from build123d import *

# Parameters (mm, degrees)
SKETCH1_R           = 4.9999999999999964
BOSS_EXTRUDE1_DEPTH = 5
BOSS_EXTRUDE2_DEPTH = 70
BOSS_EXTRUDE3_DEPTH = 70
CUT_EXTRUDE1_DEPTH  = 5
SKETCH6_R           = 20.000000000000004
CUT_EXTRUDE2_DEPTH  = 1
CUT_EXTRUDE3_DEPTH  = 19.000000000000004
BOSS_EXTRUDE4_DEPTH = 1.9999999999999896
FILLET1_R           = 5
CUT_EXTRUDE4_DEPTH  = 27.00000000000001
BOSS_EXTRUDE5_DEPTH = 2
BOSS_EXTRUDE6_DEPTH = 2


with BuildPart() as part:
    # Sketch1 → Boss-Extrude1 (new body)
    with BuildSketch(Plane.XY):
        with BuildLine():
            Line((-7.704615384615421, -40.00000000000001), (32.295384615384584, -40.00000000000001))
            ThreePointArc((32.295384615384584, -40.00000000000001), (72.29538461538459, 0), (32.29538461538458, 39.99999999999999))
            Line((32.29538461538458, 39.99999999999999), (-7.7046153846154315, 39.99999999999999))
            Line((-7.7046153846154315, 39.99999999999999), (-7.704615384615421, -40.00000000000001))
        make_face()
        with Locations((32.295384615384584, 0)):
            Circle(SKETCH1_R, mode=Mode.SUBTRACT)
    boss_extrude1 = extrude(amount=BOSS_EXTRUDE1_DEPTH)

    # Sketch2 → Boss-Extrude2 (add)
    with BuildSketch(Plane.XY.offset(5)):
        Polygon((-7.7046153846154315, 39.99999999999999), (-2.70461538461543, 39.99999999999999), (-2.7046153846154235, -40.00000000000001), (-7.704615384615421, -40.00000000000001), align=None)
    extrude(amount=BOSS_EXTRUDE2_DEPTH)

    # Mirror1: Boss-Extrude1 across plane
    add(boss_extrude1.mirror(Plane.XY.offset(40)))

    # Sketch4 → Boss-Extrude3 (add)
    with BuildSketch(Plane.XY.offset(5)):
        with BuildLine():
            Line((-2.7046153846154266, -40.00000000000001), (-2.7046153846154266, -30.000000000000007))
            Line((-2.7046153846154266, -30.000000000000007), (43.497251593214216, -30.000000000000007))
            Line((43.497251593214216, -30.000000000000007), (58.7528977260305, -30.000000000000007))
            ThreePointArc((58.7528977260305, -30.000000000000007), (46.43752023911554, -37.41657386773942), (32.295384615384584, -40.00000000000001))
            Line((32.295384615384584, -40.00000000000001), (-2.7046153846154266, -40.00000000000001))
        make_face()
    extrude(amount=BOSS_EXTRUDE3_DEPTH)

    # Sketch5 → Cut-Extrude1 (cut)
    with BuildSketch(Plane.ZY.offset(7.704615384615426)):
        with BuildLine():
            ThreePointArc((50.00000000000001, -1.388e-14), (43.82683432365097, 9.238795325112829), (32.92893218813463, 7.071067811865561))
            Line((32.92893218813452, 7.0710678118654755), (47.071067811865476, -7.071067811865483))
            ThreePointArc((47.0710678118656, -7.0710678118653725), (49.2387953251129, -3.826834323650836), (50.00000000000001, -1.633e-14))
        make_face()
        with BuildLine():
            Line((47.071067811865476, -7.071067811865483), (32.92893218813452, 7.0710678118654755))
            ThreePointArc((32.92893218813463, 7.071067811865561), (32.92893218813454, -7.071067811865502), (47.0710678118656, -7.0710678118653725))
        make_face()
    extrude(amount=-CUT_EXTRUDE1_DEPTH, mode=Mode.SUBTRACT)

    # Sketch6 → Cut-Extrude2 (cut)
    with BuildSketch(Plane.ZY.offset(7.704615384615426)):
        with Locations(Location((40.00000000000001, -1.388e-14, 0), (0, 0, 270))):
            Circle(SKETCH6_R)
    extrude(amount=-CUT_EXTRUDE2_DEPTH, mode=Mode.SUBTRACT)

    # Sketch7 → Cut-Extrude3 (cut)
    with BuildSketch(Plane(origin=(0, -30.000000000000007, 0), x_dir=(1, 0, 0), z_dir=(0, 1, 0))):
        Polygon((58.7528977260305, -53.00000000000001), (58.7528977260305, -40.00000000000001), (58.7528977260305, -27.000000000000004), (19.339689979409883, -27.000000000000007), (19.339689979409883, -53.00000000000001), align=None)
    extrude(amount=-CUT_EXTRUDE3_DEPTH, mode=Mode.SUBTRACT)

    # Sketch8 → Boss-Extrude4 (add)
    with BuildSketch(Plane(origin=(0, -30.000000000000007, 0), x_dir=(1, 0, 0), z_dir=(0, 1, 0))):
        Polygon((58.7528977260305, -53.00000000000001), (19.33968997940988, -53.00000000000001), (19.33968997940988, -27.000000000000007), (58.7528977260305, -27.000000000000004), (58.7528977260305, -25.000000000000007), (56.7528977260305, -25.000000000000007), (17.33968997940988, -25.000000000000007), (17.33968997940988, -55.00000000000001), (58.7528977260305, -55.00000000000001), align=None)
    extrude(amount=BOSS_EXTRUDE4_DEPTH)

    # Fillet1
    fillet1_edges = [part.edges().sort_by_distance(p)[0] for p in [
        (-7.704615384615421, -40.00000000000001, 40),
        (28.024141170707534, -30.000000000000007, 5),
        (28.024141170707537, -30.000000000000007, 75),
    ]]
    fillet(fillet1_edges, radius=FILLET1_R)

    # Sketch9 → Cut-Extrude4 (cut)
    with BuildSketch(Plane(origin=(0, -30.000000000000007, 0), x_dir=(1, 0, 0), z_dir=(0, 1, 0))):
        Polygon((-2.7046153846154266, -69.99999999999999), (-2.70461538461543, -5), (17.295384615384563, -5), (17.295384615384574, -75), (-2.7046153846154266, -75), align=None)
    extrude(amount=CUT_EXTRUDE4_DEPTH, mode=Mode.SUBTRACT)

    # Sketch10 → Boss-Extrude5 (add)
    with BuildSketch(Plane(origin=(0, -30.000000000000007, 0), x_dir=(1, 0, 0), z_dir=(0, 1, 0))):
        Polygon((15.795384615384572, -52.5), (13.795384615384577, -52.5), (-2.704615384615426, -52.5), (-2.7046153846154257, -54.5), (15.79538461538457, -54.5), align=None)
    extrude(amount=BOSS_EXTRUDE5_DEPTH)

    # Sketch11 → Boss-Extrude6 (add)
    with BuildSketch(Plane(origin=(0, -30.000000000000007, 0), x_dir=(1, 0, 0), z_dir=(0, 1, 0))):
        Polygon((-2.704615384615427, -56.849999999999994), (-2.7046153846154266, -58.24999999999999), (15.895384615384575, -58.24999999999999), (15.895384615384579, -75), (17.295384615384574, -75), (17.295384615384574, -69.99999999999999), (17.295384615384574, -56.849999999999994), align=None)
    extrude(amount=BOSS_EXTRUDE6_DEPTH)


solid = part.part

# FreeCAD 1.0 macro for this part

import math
import FreeCAD as App
import Part
import Sketcher


def edges_at(feature, points):
    """Names of the edges that pass closest to the given points."""
    edges = feature.Shape.Edges
    near = lambda p: min(range(len(edges)), key=lambda i: edges[i].distToShape(Part.Vertex(*p))[0])
    return sorted({f"Edge{near(p) + 1}" for p in points})

doc = App.newDocument("Part")
params = doc.addObject("Spreadsheet::Sheet", "Params")
for row, (alias, value) in enumerate([
    ("sketch1_diameter", "10 mm"),
    ("sketch1_radius", "40 mm"),
    ("sketch1_width", "40 mm"),
    ("pad1_length", "5 mm"),
    ("sketch2_width", "5 mm"),
    ("sketch2_height", "80 mm"),
    ("pad2_length", "70 mm"),
    ("sketch3_radius", "40 mm"),
    ("sketch3_width", "35 mm"),
    ("sketch3_height", "10 mm"),
    ("pad3_length", "70 mm"),
    ("sketch4_diameter", "20 mm"),
    ("pocket1_length", "5 mm"),
    ("sketch5_diameter", "40 mm"),
    ("pocket2_length", "1 mm"),
    ("sketch6_height", "26 mm"),
    ("pocket3_length", "19 mm"),
    ("sketch7_height", "26 mm"),
    ("sketch7_height2", "2 mm"),
    ("pad4_length", "2 mm"),
    ("fillet_radius", "5 mm"),
    ("sketch8_width", "20 mm"),
    ("sketch8_height", "70 mm"),
    ("pocket4_length", "27 mm"),
    ("sketch9_height", "2 mm"),
    ("sketch9_width", "18.5 mm"),
    ("pad5_length", "2 mm"),
    ("sketch10_width", "20 mm"),
    ("sketch10_width2", "18.6 mm"),
    ("sketch10_height", "16.75 mm"),
    ("pad6_length", "2 mm"),
], start=1):
    params.set(f"A{row}", alias)
    params.set(f"B{row}", "=" + value)
    params.setAlias(f"B{row}", alias)

body = doc.addObject("PartDesign::Body", "Body")

# Sketch on XY plane
sketch1 = body.newObject("Sketcher::SketchObject", "Sketch")
sketch1.AttachmentSupport = (doc.getObject("XY_Plane"), [""])
sketch1.MapMode = "FlatFace"
sketch1.addGeometry([
    Part.LineSegment(App.Vector(-7.704615, -40, 0), App.Vector(32.295385, -40, 0)),  # 0
    Part.ArcOfCircle(Part.Circle(App.Vector(32.295385, 0, 0), App.Vector(0, 0, 1), 40), math.radians(-90), math.radians(90)),  # 1
    Part.LineSegment(App.Vector(32.295385, 40, 0), App.Vector(-7.704615, 40, 0)),  # 2
    Part.LineSegment(App.Vector(-7.704615, 40, 0), App.Vector(-7.704615, -40, 0)),  # 3
    Part.Circle(App.Vector(32.295385, 0, 0), App.Vector(0, 0, 1), 5),  # 4
], False)
sketch1.addConstraint([
    Sketcher.Constraint("Tangent", 0, 2, 1, 1),
    Sketcher.Constraint("Tangent", 1, 2, 2, 1),
    Sketcher.Constraint("Coincident", 2, 2, 3, 1),
    Sketcher.Constraint("Coincident", 3, 2, 0, 1),
    Sketcher.Constraint("Horizontal", 0),
    Sketcher.Constraint("Horizontal", 2),
    Sketcher.Constraint("Vertical", 3),
    Sketcher.Constraint("Coincident", 4, 3, 1, 3),
    Sketcher.Constraint("PointOnObject", 1, 3, -1),
    Sketcher.Constraint("Diameter", 4, 10.0),
    Sketcher.Constraint("Radius", 1, 40.0),
    Sketcher.Constraint("DistanceX", 0, 1, 0, 2, 40.0),
    Sketcher.Constraint("DistanceX", -1, 1, 1, 3, 32.295385),
])
sketch1.setExpression("Constraints[9]", "Params.sketch1_diameter")
sketch1.setExpression("Constraints[10]", "Params.sketch1_radius")
sketch1.setExpression("Constraints[11]", "Params.sketch1_width")
pad1 = body.newObject("PartDesign::Pad", "Pad")
pad1.Profile = sketch1
pad1.setExpression("Length", "Params.pad1_length")

# Sketch on XY plane
sketch2 = body.newObject("Sketcher::SketchObject", "Sketch001")
sketch2.AttachmentSupport = (doc.getObject("XY_Plane"), [""])
sketch2.MapMode = "FlatFace"
sketch2.AttachmentOffset = App.Placement(App.Vector(0, 0, 5), App.Rotation())
sketch2.addGeometry([
    Part.LineSegment(App.Vector(-2.704615, 40, 0), App.Vector(-7.704615, 40, 0)),
    Part.LineSegment(App.Vector(-7.704615, 40, 0), App.Vector(-7.704615, -40, 0)),
    Part.LineSegment(App.Vector(-7.704615, -40, 0), App.Vector(-2.704615, -40, 0)),
    Part.LineSegment(App.Vector(-2.704615, -40, 0), App.Vector(-2.704615, 40, 0)),
], False)
sketch2.addConstraint([
    Sketcher.Constraint("Coincident", 0, 2, 1, 1),
    Sketcher.Constraint("Coincident", 1, 2, 2, 1),
    Sketcher.Constraint("Coincident", 2, 2, 3, 1),
    Sketcher.Constraint("Coincident", 3, 2, 0, 1),
    Sketcher.Constraint("Horizontal", 0),
    Sketcher.Constraint("Vertical", 1),
    Sketcher.Constraint("Horizontal", 2),
    Sketcher.Constraint("Vertical", 3),
    Sketcher.Constraint("DistanceX", 0, 2, 0, 1, 5.0),
    Sketcher.Constraint("DistanceY", 1, 2, 1, 1, 80.0),
    Sketcher.Constraint("DistanceY", -1, 1, 0, 2, 40.0),
    Sketcher.Constraint("DistanceX", 0, 2, -1, 1, 7.704615),
])
sketch2.setExpression("Constraints[8]", "Params.sketch2_width")
sketch2.setExpression("Constraints[9]", "Params.sketch2_height")
pad2 = body.newObject("PartDesign::Pad", "Pad001")
pad2.Profile = sketch2
pad2.setExpression("Length", "Params.pad2_length")
doc.recompute()

datumplane = body.newObject("PartDesign::Plane", "DatumPlane")
datumplane.AttachmentSupport = (doc.getObject("XY_Plane"), [""])
datumplane.MapMode = "FlatFace"
datumplane.AttachmentOffset = App.Placement(App.Vector(0, 0, 40), App.Rotation())
mirrored = body.newObject("PartDesign::Mirrored", "Mirrored")
mirrored.Originals = [pad1]
mirrored.MirrorPlane = (datumplane, [""])
body.Tip = mirrored

# Sketch on XY plane
sketch3 = body.newObject("Sketcher::SketchObject", "Sketch002")
sketch3.AttachmentSupport = (doc.getObject("XY_Plane"), [""])
sketch3.MapMode = "FlatFace"
sketch3.AttachmentOffset = App.Placement(App.Vector(0, 0, 5), App.Rotation())
sketch3.addGeometry([
    Part.LineSegment(App.Vector(-2.704615, -30, 0), App.Vector(-2.704615, -40, 0)),
    Part.LineSegment(App.Vector(-2.704615, -40, 0), App.Vector(32.295385, -40, 0)),
    Part.ArcOfCircle(Part.Circle(App.Vector(32.295385, 0, 0), App.Vector(0, 0, 1), 40), math.radians(-90), math.radians(-48.590378)),
    Part.LineSegment(App.Vector(58.752898, -30, 0), App.Vector(-2.704615, -30, 0)),
], False)
sketch3.addConstraint([
    Sketcher.Constraint("Coincident", 0, 2, 1, 1),
    Sketcher.Constraint("Tangent", 1, 2, 2, 1),
    Sketcher.Constraint("Coincident", 2, 2, 3, 1),
    Sketcher.Constraint("Coincident", 3, 2, 0, 1),
    Sketcher.Constraint("Vertical", 0),
    Sketcher.Constraint("Horizontal", 1),
    Sketcher.Constraint("Horizontal", 3),
    Sketcher.Constraint("PointOnObject", 2, 3, -1),
    Sketcher.Constraint("Radius", 2, 40.0),
    Sketcher.Constraint("DistanceX", 1, 1, 1, 2, 35.0),
    Sketcher.Constraint("DistanceY", 0, 2, 0, 1, 10.0),
    Sketcher.Constraint("DistanceX", -1, 1, 2, 3, 32.295385),
])
sketch3.setExpression("Constraints[8]", "Params.sketch3_radius")
sketch3.setExpression("Constraints[9]", "Params.sketch3_width")
sketch3.setExpression("Constraints[10]", "Params.sketch3_height")
pad3 = body.newObject("PartDesign::Pad", "Pad002")
pad3.Profile = sketch3
pad3.setExpression("Length", "Params.pad3_length")

# Sketch on YZ plane
sketch4 = body.newObject("Sketcher::SketchObject", "Sketch003")
sketch4.AttachmentSupport = (doc.getObject("YZ_Plane"), [""])
sketch4.MapMode = "FlatFace"
sketch4.AttachmentOffset = App.Placement(App.Vector(0, 0, -7.704615), App.Rotation())
sketch4.addGeometry(Part.Circle(App.Vector(0, 40, 0), App.Vector(0, 0, 1), 10), False)
sketch4.addConstraint([
    Sketcher.Constraint("PointOnObject", 0, 3, -2),
    Sketcher.Constraint("Diameter", 0, 20.0),
    Sketcher.Constraint("DistanceY", -1, 1, 0, 3, 40.0),
])
sketch4.setExpression("Constraints[1]", "Params.sketch4_diameter")
pocket1 = body.newObject("PartDesign::Pocket", "Pocket")
pocket1.Profile = sketch4
pocket1.setExpression("Length", "Params.pocket1_length")
pocket1.Reversed = True

# Sketch on YZ plane
sketch5 = body.newObject("Sketcher::SketchObject", "Sketch004")
sketch5.AttachmentSupport = (doc.getObject("YZ_Plane"), [""])
sketch5.MapMode = "FlatFace"
sketch5.AttachmentOffset = App.Placement(App.Vector(0, 0, -7.704615), App.Rotation())
sketch5.addGeometry(Part.Circle(App.Vector(0, 40, 0), App.Vector(0, 0, 1), 20), False)
sketch5.addConstraint([
    Sketcher.Constraint("PointOnObject", 0, 3, -2),
    Sketcher.Constraint("Diameter", 0, 40.0),
    Sketcher.Constraint("DistanceY", -1, 1, 0, 3, 40.0),
])
sketch5.setExpression("Constraints[1]", "Params.sketch5_diameter")
pocket2 = body.newObject("PartDesign::Pocket", "Pocket001")
pocket2.Profile = sketch5
pocket2.setExpression("Length", "Params.pocket2_length")
pocket2.Reversed = True

# Sketch on XZ plane
sketch6 = body.newObject("Sketcher::SketchObject", "Sketch005")
sketch6.AttachmentSupport = (doc.getObject("XZ_Plane"), [""])
sketch6.MapMode = "FlatFace"
sketch6.AttachmentOffset = App.Placement(App.Vector(0, 0, 30), App.Rotation())
sketch6.addGeometry([
    Part.LineSegment(App.Vector(58.752898, 53, 0), App.Vector(58.752898, 27, 0)),
    Part.LineSegment(App.Vector(58.752898, 27, 0), App.Vector(19.33969, 27, 0)),
    Part.LineSegment(App.Vector(19.33969, 27, 0), App.Vector(19.33969, 53, 0)),
    Part.LineSegment(App.Vector(19.33969, 53, 0), App.Vector(58.752898, 53, 0)),
], False)
sketch6.addConstraint([
    Sketcher.Constraint("Coincident", 0, 2, 1, 1),
    Sketcher.Constraint("Coincident", 1, 2, 2, 1),
    Sketcher.Constraint("Coincident", 2, 2, 3, 1),
    Sketcher.Constraint("Coincident", 3, 2, 0, 1),
    Sketcher.Constraint("Vertical", 0),
    Sketcher.Constraint("Horizontal", 1),
    Sketcher.Constraint("Vertical", 2),
    Sketcher.Constraint("Horizontal", 3),
    Sketcher.Constraint("DistanceY", 0, 2, 0, 1, 26.0),
    Sketcher.Constraint("DistanceY", -1, 1, 0, 2, 27.0),
    Sketcher.Constraint("DistanceX", 1, 2, 1, 1, 39.413208),
    Sketcher.Constraint("DistanceX", -1, 1, 1, 2, 19.33969),
])
sketch6.setExpression("Constraints[8]", "Params.sketch6_height")
pocket3 = body.newObject("PartDesign::Pocket", "Pocket002")
pocket3.Profile = sketch6
pocket3.setExpression("Length", "Params.pocket3_length")
pocket3.Reversed = True

# Sketch on XZ plane
sketch7 = body.newObject("Sketcher::SketchObject", "Sketch006")
sketch7.AttachmentSupport = (doc.getObject("XZ_Plane"), [""])
sketch7.MapMode = "FlatFace"
sketch7.AttachmentOffset = App.Placement(App.Vector(0, 0, 30), App.Rotation())
sketch7.addGeometry([
    Part.LineSegment(App.Vector(58.752898, 53, 0), App.Vector(19.33969, 53, 0)),  # 0
    Part.LineSegment(App.Vector(19.33969, 53, 0), App.Vector(19.33969, 27, 0)),  # 1
    Part.LineSegment(App.Vector(19.33969, 27, 0), App.Vector(58.752898, 27, 0)),  # 2
    Part.LineSegment(App.Vector(58.752898, 27, 0), App.Vector(58.752898, 25, 0)),  # 3
    Part.LineSegment(App.Vector(58.752898, 25, 0), App.Vector(17.33969, 25, 0)),  # 4
    Part.LineSegment(App.Vector(17.33969, 25, 0), App.Vector(17.33969, 55, 0)),  # 5
    Part.LineSegment(App.Vector(17.33969, 55, 0), App.Vector(58.752898, 55, 0)),  # 6
    Part.LineSegment(App.Vector(58.752898, 55, 0), App.Vector(58.752898, 53, 0)),  # 7
], False)
sketch7.addConstraint([
    Sketcher.Constraint("Coincident", 0, 2, 1, 1),
    Sketcher.Constraint("Coincident", 1, 2, 2, 1),
    Sketcher.Constraint("Coincident", 2, 2, 3, 1),
    Sketcher.Constraint("Coincident", 3, 2, 4, 1),
    Sketcher.Constraint("Coincident", 4, 2, 5, 1),
    Sketcher.Constraint("Coincident", 5, 2, 6, 1),
    Sketcher.Constraint("Coincident", 6, 2, 7, 1),
    Sketcher.Constraint("Coincident", 7, 2, 0, 1),
    Sketcher.Constraint("Horizontal", 0),
    Sketcher.Constraint("Vertical", 1),
    Sketcher.Constraint("Horizontal", 2),
    Sketcher.Constraint("Vertical", 3),
    Sketcher.Constraint("Horizontal", 4),
    Sketcher.Constraint("Vertical", 5),
    Sketcher.Constraint("Horizontal", 6),
    Sketcher.Constraint("Vertical", 7),
    Sketcher.Constraint("Vertical", 3, 2, 6, 2),
    Sketcher.Constraint("Equal", 3, 7),
    Sketcher.Constraint("DistanceY", 1, 2, 1, 1, 26.0),
    Sketcher.Constraint("DistanceY", 3, 2, 3, 1, 2.0),
    Sketcher.Constraint("DistanceY", -1, 1, 0, 2, 53.0),
    Sketcher.Constraint("DistanceX", 4, 2, 1, 2, 2.0),
    Sketcher.Constraint("DistanceX", 0, 2, 0, 1, 39.413208),
    Sketcher.Constraint("DistanceX", -1, 1, 0, 2, 19.33969),
])
sketch7.setExpression("Constraints[18]", "Params.sketch7_height")
sketch7.setExpression("Constraints[19]", "Params.sketch7_height2")
pad4 = body.newObject("PartDesign::Pad", "Pad003")
pad4.Profile = sketch7
pad4.setExpression("Length", "Params.pad4_length")
pad4.Reversed = True
doc.recompute()

fillet = body.newObject("PartDesign::Fillet", "Fillet")
fillet.Base = (pad4, edges_at(pad4, [(-7.705, -40, 40), (28.024, -30, 5), (28.024, -30, 75)]))
fillet.setExpression("Radius", "Params.fillet_radius")

# Sketch on XZ plane
sketch8 = body.newObject("Sketcher::SketchObject", "Sketch007")
sketch8.AttachmentSupport = (doc.getObject("XZ_Plane"), [""])
sketch8.MapMode = "FlatFace"
sketch8.AttachmentOffset = App.Placement(App.Vector(0, 0, 30), App.Rotation())
sketch8.addGeometry([
    Part.LineSegment(App.Vector(-2.704615, 5, 0), App.Vector(-2.704615, 75, 0)),
    Part.LineSegment(App.Vector(-2.704615, 75, 0), App.Vector(17.295385, 75, 0)),
    Part.LineSegment(App.Vector(17.295385, 75, 0), App.Vector(17.295385, 5, 0)),
    Part.LineSegment(App.Vector(17.295385, 5, 0), App.Vector(-2.704615, 5, 0)),
], False)
sketch8.addConstraint([
    Sketcher.Constraint("Coincident", 0, 2, 1, 1),
    Sketcher.Constraint("Coincident", 1, 2, 2, 1),
    Sketcher.Constraint("Coincident", 2, 2, 3, 1),
    Sketcher.Constraint("Coincident", 3, 2, 0, 1),
    Sketcher.Constraint("Vertical", 0),
    Sketcher.Constraint("Horizontal", 1),
    Sketcher.Constraint("Vertical", 2),
    Sketcher.Constraint("Horizontal", 3),
    Sketcher.Constraint("DistanceX", 1, 1, 1, 2, 20.0),
    Sketcher.Constraint("DistanceY", 0, 1, 0, 2, 70.0),
    Sketcher.Constraint("DistanceY", -1, 1, 0, 2, 75.0),
    Sketcher.Constraint("DistanceX", 0, 2, -1, 1, 2.704615),
])
sketch8.setExpression("Constraints[8]", "Params.sketch8_width")
sketch8.setExpression("Constraints[9]", "Params.sketch8_height")
pocket4 = body.newObject("PartDesign::Pocket", "Pocket003")
pocket4.Profile = sketch8
pocket4.setExpression("Length", "Params.pocket4_length")

# Sketch on XZ plane
sketch9 = body.newObject("Sketcher::SketchObject", "Sketch008")
sketch9.AttachmentSupport = (doc.getObject("XZ_Plane"), [""])
sketch9.MapMode = "FlatFace"
sketch9.AttachmentOffset = App.Placement(App.Vector(0, 0, 30), App.Rotation())
sketch9.addGeometry([
    Part.LineSegment(App.Vector(15.795385, 52.5, 0), App.Vector(-2.704615, 52.5, 0)),
    Part.LineSegment(App.Vector(-2.704615, 52.5, 0), App.Vector(-2.704615, 54.5, 0)),
    Part.LineSegment(App.Vector(-2.704615, 54.5, 0), App.Vector(15.795385, 54.5, 0)),
    Part.LineSegment(App.Vector(15.795385, 54.5, 0), App.Vector(15.795385, 52.5, 0)),
], False)
sketch9.addConstraint([
    Sketcher.Constraint("Coincident", 0, 2, 1, 1),
    Sketcher.Constraint("Coincident", 1, 2, 2, 1),
    Sketcher.Constraint("Coincident", 2, 2, 3, 1),
    Sketcher.Constraint("Coincident", 3, 2, 0, 1),
    Sketcher.Constraint("Horizontal", 0),
    Sketcher.Constraint("Vertical", 1),
    Sketcher.Constraint("Horizontal", 2),
    Sketcher.Constraint("Vertical", 3),
    Sketcher.Constraint("DistanceY", 1, 1, 1, 2, 2.0),
    Sketcher.Constraint("DistanceX", 0, 2, 0, 1, 18.5),
    Sketcher.Constraint("DistanceY", -1, 1, 0, 2, 52.5),
    Sketcher.Constraint("DistanceX", 0, 2, -1, 1, 2.704615),
])
sketch9.setExpression("Constraints[8]", "Params.sketch9_height")
sketch9.setExpression("Constraints[9]", "Params.sketch9_width")
pad5 = body.newObject("PartDesign::Pad", "Pad004")
pad5.Profile = sketch9
pad5.setExpression("Length", "Params.pad5_length")
pad5.Reversed = True

# Sketch on XZ plane
sketch10 = body.newObject("Sketcher::SketchObject", "Sketch009")
sketch10.AttachmentSupport = (doc.getObject("XZ_Plane"), [""])
sketch10.MapMode = "FlatFace"
sketch10.AttachmentOffset = App.Placement(App.Vector(0, 0, 30), App.Rotation())
sketch10.addGeometry([
    Part.LineSegment(App.Vector(-2.704615, 56.85, 0), App.Vector(-2.704615, 58.25, 0)),  # 0
    Part.LineSegment(App.Vector(-2.704615, 58.25, 0), App.Vector(15.895385, 58.25, 0)),  # 1
    Part.LineSegment(App.Vector(15.895385, 58.25, 0), App.Vector(15.895385, 75, 0)),  # 2
    Part.LineSegment(App.Vector(15.895385, 75, 0), App.Vector(17.295385, 75, 0)),  # 3
    Part.LineSegment(App.Vector(17.295385, 75, 0), App.Vector(17.295385, 56.85, 0)),  # 4
    Part.LineSegment(App.Vector(17.295385, 56.85, 0), App.Vector(-2.704615, 56.85, 0)),  # 5
], False)
sketch10.addConstraint([
    Sketcher.Constraint("Coincident", 0, 2, 1, 1),
    Sketcher.Constraint("Coincident", 1, 2, 2, 1),
    Sketcher.Constraint("Coincident", 2, 2, 3, 1),
    Sketcher.Constraint("Coincident", 3, 2, 4, 1),
    Sketcher.Constraint("Coincident", 4, 2, 5, 1),
    Sketcher.Constraint("Coincident", 5, 2, 0, 1),
    Sketcher.Constraint("Vertical", 0),
    Sketcher.Constraint("Horizontal", 1),
    Sketcher.Constraint("Vertical", 2),
    Sketcher.Constraint("Horizontal", 3),
    Sketcher.Constraint("Vertical", 4),
    Sketcher.Constraint("Horizontal", 5),
    Sketcher.Constraint("Equal", 3, 0),
    Sketcher.Constraint("DistanceX", 5, 2, 5, 1, 20.0),
    Sketcher.Constraint("DistanceX", 1, 1, 1, 2, 18.6),
    Sketcher.Constraint("DistanceY", -1, 1, 2, 2, 75.0),
    Sketcher.Constraint("DistanceY", 2, 1, 2, 2, 16.75),
    Sketcher.Constraint("DistanceX", 0, 2, -1, 1, 2.704615),
])
sketch10.setExpression("Constraints[13]", "Params.sketch10_width")
sketch10.setExpression("Constraints[14]", "Params.sketch10_width2")
sketch10.setExpression("Constraints[16]", "Params.sketch10_height")
pad6 = body.newObject("PartDesign::Pad", "Pad005")
pad6.Profile = sketch10
pad6.setExpression("Length", "Params.pad6_length")
pad6.Reversed = True

doc.recompute()
